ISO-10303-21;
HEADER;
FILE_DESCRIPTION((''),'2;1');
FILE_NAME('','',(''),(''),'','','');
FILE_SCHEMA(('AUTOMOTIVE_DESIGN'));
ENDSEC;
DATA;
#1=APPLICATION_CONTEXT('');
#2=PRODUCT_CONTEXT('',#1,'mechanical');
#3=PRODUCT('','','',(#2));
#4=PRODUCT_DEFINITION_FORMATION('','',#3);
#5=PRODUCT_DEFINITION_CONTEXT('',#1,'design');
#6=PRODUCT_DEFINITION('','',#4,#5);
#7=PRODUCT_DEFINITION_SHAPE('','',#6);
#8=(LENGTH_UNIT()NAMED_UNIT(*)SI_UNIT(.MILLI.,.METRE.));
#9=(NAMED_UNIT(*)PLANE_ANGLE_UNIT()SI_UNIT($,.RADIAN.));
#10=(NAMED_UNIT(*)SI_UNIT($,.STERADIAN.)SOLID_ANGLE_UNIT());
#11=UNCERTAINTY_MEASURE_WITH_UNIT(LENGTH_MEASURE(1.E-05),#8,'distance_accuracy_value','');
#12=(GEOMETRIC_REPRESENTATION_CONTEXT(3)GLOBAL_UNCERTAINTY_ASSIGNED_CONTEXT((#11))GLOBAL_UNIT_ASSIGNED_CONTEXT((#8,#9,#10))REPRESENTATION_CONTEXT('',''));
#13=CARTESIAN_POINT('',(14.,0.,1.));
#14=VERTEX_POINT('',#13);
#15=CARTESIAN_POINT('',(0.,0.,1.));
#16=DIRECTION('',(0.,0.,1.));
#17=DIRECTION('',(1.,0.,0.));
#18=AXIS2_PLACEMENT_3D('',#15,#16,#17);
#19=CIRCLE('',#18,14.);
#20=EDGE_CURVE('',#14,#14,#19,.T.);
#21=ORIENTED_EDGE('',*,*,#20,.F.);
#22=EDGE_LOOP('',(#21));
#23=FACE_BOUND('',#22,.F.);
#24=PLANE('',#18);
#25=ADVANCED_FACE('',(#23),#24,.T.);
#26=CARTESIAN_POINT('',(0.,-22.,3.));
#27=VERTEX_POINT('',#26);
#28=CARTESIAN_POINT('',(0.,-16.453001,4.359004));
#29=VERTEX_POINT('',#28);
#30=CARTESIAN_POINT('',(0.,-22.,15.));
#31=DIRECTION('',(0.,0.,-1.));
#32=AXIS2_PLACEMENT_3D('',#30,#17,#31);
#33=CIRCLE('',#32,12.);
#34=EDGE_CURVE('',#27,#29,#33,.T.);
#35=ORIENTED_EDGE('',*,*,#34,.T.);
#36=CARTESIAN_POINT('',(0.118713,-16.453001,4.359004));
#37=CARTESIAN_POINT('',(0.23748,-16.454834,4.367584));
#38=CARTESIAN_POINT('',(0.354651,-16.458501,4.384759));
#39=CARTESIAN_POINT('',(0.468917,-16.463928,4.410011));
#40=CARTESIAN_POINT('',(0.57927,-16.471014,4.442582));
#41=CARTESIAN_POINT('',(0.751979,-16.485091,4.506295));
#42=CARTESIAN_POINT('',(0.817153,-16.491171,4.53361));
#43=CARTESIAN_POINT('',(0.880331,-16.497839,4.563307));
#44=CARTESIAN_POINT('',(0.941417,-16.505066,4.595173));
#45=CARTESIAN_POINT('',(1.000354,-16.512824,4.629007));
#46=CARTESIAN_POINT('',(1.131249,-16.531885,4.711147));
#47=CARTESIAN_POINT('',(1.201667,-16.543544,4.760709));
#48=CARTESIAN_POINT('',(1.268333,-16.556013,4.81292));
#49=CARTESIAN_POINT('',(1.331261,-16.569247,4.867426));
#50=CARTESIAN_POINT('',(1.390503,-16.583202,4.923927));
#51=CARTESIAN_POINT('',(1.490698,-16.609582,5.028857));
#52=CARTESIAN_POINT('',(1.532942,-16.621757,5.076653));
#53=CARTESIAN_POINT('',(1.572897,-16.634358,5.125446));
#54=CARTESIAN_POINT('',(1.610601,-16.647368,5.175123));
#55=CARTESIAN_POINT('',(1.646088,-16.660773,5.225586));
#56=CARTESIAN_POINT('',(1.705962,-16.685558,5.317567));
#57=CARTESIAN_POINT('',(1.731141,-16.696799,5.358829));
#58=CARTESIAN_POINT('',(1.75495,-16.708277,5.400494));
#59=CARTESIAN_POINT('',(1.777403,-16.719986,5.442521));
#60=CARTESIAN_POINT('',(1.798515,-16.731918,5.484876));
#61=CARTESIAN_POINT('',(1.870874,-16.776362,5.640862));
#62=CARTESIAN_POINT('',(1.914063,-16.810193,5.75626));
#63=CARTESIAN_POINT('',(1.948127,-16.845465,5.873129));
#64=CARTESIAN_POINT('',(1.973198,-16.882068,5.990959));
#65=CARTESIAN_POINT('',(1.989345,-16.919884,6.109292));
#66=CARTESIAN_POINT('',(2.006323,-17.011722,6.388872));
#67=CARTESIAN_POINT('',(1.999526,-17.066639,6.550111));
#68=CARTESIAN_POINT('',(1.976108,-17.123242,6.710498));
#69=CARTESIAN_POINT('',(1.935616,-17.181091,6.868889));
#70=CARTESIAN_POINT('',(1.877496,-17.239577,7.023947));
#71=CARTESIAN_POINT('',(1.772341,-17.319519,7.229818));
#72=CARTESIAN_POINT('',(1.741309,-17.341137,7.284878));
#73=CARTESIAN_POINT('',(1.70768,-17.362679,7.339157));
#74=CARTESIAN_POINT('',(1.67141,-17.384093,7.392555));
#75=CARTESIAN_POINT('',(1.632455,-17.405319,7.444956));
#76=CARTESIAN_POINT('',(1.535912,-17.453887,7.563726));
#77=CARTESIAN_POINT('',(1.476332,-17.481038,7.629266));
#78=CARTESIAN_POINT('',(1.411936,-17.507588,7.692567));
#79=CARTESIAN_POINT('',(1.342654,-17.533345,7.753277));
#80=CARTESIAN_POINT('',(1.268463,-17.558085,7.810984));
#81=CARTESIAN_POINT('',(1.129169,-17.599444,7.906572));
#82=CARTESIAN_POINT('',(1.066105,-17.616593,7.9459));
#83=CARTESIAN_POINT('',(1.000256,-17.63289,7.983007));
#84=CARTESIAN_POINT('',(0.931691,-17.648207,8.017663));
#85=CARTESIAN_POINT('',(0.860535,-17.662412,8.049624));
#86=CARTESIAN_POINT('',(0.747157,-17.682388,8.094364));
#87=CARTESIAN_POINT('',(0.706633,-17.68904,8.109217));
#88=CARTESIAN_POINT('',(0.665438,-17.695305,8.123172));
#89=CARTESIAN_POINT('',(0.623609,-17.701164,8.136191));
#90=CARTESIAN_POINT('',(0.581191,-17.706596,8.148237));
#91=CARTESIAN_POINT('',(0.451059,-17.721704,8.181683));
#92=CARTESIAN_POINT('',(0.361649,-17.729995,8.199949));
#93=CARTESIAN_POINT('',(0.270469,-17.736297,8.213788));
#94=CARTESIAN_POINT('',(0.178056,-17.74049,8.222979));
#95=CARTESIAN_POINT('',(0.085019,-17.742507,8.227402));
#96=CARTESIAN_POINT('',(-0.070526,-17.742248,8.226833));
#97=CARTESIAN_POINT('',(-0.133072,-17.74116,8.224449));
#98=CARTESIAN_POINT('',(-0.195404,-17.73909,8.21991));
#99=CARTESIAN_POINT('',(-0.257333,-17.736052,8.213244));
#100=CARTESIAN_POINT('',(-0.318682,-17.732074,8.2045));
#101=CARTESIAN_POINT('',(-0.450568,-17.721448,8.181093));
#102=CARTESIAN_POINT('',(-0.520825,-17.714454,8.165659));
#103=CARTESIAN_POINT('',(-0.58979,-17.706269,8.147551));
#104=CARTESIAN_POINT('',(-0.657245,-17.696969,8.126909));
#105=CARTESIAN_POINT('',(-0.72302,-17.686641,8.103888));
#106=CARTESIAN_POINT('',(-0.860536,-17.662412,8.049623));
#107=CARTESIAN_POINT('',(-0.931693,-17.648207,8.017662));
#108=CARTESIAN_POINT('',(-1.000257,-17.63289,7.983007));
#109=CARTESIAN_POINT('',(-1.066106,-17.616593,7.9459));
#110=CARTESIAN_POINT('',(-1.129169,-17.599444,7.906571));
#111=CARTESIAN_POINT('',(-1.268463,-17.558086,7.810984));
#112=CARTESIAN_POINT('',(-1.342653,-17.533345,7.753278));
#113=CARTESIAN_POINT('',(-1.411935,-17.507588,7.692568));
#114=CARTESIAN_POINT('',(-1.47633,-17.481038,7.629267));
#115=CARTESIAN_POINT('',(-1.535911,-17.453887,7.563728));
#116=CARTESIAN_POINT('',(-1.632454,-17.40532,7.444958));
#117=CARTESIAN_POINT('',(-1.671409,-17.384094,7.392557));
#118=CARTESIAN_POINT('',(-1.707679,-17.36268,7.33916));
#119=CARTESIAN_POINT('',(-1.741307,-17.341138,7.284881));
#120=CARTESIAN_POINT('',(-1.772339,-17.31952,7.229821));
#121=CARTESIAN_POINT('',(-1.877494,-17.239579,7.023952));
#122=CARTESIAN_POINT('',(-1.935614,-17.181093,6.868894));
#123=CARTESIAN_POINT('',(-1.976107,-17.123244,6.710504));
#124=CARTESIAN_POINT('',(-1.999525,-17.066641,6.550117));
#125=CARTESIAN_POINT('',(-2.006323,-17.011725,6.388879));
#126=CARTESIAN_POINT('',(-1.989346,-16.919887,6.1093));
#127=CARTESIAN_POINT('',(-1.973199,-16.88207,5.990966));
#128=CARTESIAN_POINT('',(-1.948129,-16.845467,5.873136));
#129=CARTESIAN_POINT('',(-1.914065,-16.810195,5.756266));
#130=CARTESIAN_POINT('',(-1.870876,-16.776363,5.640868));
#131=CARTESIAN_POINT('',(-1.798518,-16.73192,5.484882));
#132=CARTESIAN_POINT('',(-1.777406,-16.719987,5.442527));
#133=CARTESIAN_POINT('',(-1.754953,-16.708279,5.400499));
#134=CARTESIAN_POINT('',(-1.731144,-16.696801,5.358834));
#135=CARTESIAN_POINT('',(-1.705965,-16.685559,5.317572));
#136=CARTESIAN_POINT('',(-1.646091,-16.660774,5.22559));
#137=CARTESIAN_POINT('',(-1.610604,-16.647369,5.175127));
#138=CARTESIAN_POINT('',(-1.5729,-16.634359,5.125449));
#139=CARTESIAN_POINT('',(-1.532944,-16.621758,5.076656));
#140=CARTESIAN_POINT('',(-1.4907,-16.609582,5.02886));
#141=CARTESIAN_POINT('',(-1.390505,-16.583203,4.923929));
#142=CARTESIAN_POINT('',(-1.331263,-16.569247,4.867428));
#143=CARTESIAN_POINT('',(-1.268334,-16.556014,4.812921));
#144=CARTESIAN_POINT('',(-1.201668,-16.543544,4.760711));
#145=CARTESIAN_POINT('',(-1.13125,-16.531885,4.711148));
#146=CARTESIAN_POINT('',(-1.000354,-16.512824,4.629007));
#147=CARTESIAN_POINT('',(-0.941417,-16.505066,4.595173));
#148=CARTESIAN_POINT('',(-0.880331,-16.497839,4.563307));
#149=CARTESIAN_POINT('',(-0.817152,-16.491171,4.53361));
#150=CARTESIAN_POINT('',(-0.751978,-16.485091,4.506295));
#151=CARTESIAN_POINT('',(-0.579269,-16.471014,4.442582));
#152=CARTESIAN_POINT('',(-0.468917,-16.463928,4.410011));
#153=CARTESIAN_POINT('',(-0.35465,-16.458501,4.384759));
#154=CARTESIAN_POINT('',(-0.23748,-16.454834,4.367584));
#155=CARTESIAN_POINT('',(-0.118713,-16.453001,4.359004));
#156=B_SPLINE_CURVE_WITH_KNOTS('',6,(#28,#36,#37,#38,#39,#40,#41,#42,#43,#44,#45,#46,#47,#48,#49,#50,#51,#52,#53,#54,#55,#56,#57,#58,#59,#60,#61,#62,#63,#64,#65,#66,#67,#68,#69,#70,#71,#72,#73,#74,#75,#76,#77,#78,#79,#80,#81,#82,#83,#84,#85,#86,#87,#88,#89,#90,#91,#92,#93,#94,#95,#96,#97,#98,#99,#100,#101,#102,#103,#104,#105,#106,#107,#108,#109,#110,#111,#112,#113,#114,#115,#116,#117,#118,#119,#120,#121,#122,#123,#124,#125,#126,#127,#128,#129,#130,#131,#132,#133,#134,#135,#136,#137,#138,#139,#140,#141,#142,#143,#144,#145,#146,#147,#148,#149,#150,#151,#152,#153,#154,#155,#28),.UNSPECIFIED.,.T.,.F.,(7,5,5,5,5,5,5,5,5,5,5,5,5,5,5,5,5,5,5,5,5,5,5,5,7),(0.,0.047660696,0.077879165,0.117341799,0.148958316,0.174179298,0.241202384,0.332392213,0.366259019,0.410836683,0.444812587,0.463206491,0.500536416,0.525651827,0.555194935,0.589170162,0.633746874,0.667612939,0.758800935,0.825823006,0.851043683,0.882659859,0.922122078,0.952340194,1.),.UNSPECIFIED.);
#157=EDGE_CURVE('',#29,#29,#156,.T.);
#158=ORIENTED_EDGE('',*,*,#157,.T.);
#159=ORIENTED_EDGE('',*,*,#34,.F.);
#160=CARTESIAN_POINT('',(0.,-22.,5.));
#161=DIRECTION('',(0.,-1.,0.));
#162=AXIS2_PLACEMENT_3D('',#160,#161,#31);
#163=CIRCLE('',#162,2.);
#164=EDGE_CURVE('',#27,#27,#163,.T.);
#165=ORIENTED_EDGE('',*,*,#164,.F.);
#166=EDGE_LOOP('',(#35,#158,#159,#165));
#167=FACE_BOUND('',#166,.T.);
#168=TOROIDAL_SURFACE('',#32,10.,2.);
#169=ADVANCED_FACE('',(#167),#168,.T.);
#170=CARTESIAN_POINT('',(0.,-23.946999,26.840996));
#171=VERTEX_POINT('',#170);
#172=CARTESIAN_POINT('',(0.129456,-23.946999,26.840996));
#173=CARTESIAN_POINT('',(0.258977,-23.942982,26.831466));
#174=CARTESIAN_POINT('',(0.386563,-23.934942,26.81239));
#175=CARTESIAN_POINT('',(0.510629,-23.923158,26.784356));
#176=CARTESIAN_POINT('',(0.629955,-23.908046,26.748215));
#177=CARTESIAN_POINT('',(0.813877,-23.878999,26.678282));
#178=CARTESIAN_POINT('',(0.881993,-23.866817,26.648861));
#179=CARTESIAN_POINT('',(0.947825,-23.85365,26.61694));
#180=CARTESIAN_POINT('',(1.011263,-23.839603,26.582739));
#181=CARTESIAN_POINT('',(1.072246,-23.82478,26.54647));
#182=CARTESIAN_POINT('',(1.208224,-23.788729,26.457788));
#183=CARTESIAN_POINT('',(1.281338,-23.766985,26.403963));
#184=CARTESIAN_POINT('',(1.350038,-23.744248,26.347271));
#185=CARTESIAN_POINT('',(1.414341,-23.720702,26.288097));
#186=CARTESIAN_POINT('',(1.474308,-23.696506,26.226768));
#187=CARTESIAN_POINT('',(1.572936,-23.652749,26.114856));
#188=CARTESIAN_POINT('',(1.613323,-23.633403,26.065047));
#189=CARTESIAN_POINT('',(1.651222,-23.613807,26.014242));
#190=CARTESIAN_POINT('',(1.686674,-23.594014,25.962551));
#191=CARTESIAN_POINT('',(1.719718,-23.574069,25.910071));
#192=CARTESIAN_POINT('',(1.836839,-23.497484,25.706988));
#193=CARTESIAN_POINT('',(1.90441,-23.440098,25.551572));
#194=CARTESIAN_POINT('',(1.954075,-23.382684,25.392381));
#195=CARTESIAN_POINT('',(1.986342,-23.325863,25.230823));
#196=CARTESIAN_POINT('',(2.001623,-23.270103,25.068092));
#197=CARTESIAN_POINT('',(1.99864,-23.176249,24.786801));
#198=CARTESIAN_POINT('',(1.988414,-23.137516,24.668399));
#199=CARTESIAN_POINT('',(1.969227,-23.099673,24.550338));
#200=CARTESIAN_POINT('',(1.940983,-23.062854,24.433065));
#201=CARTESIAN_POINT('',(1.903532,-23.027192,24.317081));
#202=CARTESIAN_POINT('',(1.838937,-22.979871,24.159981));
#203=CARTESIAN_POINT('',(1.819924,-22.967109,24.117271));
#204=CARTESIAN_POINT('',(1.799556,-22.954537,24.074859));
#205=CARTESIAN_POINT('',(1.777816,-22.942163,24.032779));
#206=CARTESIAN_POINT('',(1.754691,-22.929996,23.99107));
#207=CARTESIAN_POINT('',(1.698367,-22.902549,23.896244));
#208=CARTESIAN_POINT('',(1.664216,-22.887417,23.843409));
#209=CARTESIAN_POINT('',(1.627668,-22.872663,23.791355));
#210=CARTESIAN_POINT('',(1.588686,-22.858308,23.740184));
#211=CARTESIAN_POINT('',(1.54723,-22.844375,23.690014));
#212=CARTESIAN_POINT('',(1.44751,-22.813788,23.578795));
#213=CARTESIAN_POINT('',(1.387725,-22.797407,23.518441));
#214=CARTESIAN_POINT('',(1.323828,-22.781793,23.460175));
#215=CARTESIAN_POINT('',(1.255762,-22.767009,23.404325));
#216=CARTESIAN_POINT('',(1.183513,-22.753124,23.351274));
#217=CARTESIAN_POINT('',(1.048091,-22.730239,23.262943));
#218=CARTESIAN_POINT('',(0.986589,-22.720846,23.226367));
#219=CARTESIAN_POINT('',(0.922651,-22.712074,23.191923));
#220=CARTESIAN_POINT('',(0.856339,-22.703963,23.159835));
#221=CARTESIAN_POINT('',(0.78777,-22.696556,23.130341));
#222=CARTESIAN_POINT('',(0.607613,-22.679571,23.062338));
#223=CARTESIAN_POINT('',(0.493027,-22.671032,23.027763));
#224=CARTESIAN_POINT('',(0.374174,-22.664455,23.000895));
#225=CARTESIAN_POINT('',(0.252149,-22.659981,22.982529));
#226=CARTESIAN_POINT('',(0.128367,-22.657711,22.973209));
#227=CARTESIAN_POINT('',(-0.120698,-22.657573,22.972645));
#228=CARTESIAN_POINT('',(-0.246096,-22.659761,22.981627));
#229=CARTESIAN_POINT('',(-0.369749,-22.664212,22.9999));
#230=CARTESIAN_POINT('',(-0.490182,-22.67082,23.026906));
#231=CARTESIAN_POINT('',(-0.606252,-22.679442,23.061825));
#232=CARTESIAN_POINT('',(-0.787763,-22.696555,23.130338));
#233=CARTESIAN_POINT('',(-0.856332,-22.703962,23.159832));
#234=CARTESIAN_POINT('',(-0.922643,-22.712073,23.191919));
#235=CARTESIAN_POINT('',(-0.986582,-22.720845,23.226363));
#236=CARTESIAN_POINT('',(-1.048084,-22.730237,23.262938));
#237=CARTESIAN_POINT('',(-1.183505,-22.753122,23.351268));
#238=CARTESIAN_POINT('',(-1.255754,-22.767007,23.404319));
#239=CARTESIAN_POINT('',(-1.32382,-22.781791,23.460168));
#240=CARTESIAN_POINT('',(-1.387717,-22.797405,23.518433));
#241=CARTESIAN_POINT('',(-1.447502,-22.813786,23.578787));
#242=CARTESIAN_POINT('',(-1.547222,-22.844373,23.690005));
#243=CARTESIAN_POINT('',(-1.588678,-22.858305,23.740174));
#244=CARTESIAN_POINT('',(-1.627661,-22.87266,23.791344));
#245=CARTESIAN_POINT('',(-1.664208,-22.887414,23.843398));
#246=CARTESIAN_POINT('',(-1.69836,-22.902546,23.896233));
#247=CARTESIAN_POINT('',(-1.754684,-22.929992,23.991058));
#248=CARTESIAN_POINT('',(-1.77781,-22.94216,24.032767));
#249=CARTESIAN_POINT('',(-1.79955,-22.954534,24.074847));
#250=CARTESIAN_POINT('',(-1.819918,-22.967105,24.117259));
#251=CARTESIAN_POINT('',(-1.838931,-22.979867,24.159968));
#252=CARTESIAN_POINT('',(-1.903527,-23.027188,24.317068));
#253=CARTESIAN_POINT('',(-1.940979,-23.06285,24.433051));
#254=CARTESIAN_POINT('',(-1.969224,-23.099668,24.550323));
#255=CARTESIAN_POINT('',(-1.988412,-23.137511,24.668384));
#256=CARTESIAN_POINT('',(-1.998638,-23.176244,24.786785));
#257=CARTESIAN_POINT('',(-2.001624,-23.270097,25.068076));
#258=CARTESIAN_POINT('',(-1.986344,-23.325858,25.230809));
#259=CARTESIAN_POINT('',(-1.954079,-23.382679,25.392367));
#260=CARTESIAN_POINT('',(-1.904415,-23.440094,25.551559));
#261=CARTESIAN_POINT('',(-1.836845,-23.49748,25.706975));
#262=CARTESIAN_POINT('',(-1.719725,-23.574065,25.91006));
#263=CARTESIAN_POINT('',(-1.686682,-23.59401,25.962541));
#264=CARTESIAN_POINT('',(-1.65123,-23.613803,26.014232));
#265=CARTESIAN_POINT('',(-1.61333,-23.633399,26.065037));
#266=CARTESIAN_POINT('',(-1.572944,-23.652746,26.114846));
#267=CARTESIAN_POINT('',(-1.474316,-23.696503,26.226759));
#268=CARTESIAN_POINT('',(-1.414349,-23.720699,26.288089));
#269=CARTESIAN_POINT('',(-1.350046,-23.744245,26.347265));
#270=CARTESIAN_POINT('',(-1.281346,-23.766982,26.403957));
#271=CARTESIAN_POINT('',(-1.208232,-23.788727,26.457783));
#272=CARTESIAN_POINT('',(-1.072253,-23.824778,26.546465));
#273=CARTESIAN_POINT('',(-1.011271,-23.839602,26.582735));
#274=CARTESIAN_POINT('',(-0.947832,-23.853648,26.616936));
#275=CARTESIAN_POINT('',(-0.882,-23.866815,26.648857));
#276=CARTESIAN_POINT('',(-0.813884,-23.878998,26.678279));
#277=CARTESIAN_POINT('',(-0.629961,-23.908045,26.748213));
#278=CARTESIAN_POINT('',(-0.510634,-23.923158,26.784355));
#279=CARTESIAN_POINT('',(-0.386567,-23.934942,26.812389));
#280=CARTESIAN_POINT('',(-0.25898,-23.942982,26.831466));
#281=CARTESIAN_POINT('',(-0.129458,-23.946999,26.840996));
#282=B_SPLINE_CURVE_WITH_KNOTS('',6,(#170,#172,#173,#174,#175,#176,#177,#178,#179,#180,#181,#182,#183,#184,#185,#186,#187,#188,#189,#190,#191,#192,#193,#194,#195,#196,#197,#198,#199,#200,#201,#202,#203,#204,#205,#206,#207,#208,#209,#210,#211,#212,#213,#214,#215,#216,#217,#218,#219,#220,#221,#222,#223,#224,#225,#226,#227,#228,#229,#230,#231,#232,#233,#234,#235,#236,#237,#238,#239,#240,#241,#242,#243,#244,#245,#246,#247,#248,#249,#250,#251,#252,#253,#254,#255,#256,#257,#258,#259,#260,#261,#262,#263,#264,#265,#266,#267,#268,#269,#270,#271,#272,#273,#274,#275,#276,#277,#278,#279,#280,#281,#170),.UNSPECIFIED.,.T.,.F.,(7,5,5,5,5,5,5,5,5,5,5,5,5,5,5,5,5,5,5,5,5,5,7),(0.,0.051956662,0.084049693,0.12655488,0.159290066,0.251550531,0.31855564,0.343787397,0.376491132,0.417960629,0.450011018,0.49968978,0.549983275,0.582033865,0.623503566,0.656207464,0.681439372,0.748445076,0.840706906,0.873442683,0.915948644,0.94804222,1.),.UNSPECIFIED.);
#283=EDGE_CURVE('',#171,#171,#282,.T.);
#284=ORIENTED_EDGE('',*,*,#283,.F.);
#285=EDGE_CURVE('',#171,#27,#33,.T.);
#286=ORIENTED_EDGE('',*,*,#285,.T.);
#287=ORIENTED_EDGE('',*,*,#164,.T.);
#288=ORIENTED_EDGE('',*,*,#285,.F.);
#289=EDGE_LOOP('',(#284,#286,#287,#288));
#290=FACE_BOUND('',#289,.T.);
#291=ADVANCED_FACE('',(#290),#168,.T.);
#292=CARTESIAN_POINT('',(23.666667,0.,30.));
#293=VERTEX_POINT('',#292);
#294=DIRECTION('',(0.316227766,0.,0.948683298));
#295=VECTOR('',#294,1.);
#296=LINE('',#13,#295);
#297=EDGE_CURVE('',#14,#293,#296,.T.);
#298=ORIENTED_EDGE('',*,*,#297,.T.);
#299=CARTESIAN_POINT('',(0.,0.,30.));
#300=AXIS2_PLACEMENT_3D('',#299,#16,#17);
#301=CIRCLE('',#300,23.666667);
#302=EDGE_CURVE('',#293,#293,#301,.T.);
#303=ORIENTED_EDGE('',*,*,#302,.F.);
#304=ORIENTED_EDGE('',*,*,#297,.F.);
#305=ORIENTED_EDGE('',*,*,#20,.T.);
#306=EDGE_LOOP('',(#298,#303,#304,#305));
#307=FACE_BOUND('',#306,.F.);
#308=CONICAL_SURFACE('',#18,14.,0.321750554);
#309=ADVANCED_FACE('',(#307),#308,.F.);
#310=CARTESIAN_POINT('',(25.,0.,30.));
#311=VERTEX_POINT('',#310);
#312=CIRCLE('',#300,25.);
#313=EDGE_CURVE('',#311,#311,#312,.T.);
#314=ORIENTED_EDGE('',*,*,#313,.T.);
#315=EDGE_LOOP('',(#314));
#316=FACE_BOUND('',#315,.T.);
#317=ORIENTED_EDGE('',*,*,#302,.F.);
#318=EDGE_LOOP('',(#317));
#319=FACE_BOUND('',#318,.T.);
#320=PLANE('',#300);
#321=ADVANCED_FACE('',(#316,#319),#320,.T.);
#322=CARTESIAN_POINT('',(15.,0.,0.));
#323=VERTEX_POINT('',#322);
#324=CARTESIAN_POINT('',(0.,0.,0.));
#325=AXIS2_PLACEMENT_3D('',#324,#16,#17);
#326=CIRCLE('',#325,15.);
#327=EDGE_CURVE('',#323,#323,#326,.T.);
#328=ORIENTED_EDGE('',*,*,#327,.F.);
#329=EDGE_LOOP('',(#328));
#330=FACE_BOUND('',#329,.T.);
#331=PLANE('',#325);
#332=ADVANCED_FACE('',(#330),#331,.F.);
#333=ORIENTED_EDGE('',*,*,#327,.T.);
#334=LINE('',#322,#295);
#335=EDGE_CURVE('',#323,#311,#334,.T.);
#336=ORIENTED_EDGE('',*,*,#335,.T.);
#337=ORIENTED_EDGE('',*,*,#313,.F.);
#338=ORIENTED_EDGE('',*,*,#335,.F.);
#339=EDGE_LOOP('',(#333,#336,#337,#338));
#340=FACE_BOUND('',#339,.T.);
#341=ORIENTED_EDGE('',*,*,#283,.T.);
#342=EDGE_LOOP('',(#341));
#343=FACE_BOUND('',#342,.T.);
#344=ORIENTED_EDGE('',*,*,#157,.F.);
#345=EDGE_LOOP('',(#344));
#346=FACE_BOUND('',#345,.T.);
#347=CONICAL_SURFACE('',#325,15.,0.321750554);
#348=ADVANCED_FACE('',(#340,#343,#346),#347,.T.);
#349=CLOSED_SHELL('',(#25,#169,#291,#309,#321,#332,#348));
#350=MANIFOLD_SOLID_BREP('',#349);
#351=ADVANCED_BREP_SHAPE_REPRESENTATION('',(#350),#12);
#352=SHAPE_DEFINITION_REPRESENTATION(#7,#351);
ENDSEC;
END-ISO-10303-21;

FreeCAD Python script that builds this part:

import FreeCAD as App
import Part
import Sketcher
from FreeCAD import Vector


def add_polygon(sketch, points):
    """Adds a closed chain of lines whose ends are joined by coincident constraints."""
    first, n = sketch.GeometryCount, len(points)
    for a, b in zip(points, points[1:] + points[:1]):
        sketch.addGeometry(Part.LineSegment(App.Vector(*a, 0), App.Vector(*b, 0)), False)
    for i in range(n):
        sketch.addConstraint(Sketcher.Constraint("Coincident", first + i, 2, first + (i + 1) % n, 1))

doc = App.newDocument("Part")
body = doc.addObject("PartDesign::Body", "Body")

# Sketch on XZ plane
sketch1 = body.newObject("Sketcher::SketchObject", "Sketch")
sketch1.AttachmentSupport = (doc.getObject("XZ_Plane"), [""])
sketch1.MapMode = "FlatFace"
add_polygon(sketch1, [(0, 1), (14, 1), (24, 31), (0, 31)])  # lines 0-3
sketch1.addConstraint([
    Sketcher.Constraint("Horizontal", 0),
    Sketcher.Constraint("Horizontal", 2),
    Sketcher.Constraint("Vertical", 3),
    Sketcher.Constraint("PointOnObject", 2, 2, -2),
    Sketcher.Constraint("DistanceX", 0, 1, 0, 2, 14.0),
    Sketcher.Constraint("DistanceX", 2, 2, 2, 1, 24.0),
    Sketcher.Constraint("DistanceY", 3, 2, 3, 1, 30.0),
    Sketcher.Constraint("DistanceY", -1, 1, 0, 2, 1.0),
])
revolution = body.newObject("PartDesign::Revolution", "Revolution")
revolution.Profile = sketch1
revolution.ReferenceAxis = (sketch1, ["V_Axis"])
revolution.Angle = 360
body2 = doc.addObject("PartDesign::Body", "Body001")

# Sketch on XZ plane
sketch2 = body2.newObject("Sketcher::SketchObject", "Sketch001")
sketch2.AttachmentSupport = (doc.getObject("XZ_Plane001"), [""])
sketch2.MapMode = "FlatFace"
sketch2.AttachmentOffset = App.Placement(Vector(0, 0, 22), App.Rotation())
sketch2.addGeometry(Part.Circle(Vector(0, 5, 0), Vector(0, 0, 1), 2), False)
sketch2.addGeometry(Part.LineSegment(Vector(0, 15, 0), Vector(10, 15, 0)), True)  # axis
sketch2.addConstraint([
    Sketcher.Constraint("Horizontal", 1),
    Sketcher.Constraint("PointOnObject", 0, 3, -2),
    Sketcher.Constraint("PointOnObject", 1, 1, -2),
    Sketcher.Constraint("Diameter", 0, 4.0),
    Sketcher.Constraint("DistanceX", 1, 1, 1, 2, 10.0),
    Sketcher.Constraint("DistanceY", -1, 1, 0, 3, 5.0),
    Sketcher.Constraint("DistanceY", -1, 1, 1, 1, 15.0),
])
revolution2 = body2.newObject("PartDesign::Revolution", "Revolution001")
revolution2.Profile = sketch2
revolution2.ReferenceAxis = (sketch2, ["Axis0"])
revolution2.Angle = 360
body3 = doc.addObject("PartDesign::Body", "Body002")

# Sketch on XZ plane
sketch3 = body3.newObject("Sketcher::SketchObject", "Sketch002")
sketch3.AttachmentSupport = (doc.getObject("XZ_Plane002"), [""])
sketch3.MapMode = "FlatFace"
add_polygon(sketch3, [(0, 0), (15, 0), (25, 30), (0, 30)])  # lines 0-3
sketch3.addConstraint([
    Sketcher.Constraint("Horizontal", 0),
    Sketcher.Constraint("Horizontal", 2),
    Sketcher.Constraint("Vertical", 3),
    Sketcher.Constraint("Coincident", 3, 2, -1, 1),
    Sketcher.Constraint("DistanceX", 0, 1, 0, 2, 15.0),
    Sketcher.Constraint("DistanceX", 2, 2, 2, 1, 25.0),
    Sketcher.Constraint("DistanceY", 3, 2, 3, 1, 30.0),
])
revolution3 = body3.newObject("PartDesign::Revolution", "Revolution002")
revolution3.Profile = sketch3
revolution3.ReferenceAxis = (sketch3, ["V_Axis"])
revolution3.Angle = 360
doc.recompute()

boolean = body3.newObject("PartDesign::Boolean", "Boolean")
boolean.Type = "Fuse"
boolean.addObjects([body2])
doc.recompute()

boolean2 = body3.newObject("PartDesign::Boolean", "Boolean001")
boolean2.Type = "Cut"
boolean2.addObjects([body])

doc.recompute()
